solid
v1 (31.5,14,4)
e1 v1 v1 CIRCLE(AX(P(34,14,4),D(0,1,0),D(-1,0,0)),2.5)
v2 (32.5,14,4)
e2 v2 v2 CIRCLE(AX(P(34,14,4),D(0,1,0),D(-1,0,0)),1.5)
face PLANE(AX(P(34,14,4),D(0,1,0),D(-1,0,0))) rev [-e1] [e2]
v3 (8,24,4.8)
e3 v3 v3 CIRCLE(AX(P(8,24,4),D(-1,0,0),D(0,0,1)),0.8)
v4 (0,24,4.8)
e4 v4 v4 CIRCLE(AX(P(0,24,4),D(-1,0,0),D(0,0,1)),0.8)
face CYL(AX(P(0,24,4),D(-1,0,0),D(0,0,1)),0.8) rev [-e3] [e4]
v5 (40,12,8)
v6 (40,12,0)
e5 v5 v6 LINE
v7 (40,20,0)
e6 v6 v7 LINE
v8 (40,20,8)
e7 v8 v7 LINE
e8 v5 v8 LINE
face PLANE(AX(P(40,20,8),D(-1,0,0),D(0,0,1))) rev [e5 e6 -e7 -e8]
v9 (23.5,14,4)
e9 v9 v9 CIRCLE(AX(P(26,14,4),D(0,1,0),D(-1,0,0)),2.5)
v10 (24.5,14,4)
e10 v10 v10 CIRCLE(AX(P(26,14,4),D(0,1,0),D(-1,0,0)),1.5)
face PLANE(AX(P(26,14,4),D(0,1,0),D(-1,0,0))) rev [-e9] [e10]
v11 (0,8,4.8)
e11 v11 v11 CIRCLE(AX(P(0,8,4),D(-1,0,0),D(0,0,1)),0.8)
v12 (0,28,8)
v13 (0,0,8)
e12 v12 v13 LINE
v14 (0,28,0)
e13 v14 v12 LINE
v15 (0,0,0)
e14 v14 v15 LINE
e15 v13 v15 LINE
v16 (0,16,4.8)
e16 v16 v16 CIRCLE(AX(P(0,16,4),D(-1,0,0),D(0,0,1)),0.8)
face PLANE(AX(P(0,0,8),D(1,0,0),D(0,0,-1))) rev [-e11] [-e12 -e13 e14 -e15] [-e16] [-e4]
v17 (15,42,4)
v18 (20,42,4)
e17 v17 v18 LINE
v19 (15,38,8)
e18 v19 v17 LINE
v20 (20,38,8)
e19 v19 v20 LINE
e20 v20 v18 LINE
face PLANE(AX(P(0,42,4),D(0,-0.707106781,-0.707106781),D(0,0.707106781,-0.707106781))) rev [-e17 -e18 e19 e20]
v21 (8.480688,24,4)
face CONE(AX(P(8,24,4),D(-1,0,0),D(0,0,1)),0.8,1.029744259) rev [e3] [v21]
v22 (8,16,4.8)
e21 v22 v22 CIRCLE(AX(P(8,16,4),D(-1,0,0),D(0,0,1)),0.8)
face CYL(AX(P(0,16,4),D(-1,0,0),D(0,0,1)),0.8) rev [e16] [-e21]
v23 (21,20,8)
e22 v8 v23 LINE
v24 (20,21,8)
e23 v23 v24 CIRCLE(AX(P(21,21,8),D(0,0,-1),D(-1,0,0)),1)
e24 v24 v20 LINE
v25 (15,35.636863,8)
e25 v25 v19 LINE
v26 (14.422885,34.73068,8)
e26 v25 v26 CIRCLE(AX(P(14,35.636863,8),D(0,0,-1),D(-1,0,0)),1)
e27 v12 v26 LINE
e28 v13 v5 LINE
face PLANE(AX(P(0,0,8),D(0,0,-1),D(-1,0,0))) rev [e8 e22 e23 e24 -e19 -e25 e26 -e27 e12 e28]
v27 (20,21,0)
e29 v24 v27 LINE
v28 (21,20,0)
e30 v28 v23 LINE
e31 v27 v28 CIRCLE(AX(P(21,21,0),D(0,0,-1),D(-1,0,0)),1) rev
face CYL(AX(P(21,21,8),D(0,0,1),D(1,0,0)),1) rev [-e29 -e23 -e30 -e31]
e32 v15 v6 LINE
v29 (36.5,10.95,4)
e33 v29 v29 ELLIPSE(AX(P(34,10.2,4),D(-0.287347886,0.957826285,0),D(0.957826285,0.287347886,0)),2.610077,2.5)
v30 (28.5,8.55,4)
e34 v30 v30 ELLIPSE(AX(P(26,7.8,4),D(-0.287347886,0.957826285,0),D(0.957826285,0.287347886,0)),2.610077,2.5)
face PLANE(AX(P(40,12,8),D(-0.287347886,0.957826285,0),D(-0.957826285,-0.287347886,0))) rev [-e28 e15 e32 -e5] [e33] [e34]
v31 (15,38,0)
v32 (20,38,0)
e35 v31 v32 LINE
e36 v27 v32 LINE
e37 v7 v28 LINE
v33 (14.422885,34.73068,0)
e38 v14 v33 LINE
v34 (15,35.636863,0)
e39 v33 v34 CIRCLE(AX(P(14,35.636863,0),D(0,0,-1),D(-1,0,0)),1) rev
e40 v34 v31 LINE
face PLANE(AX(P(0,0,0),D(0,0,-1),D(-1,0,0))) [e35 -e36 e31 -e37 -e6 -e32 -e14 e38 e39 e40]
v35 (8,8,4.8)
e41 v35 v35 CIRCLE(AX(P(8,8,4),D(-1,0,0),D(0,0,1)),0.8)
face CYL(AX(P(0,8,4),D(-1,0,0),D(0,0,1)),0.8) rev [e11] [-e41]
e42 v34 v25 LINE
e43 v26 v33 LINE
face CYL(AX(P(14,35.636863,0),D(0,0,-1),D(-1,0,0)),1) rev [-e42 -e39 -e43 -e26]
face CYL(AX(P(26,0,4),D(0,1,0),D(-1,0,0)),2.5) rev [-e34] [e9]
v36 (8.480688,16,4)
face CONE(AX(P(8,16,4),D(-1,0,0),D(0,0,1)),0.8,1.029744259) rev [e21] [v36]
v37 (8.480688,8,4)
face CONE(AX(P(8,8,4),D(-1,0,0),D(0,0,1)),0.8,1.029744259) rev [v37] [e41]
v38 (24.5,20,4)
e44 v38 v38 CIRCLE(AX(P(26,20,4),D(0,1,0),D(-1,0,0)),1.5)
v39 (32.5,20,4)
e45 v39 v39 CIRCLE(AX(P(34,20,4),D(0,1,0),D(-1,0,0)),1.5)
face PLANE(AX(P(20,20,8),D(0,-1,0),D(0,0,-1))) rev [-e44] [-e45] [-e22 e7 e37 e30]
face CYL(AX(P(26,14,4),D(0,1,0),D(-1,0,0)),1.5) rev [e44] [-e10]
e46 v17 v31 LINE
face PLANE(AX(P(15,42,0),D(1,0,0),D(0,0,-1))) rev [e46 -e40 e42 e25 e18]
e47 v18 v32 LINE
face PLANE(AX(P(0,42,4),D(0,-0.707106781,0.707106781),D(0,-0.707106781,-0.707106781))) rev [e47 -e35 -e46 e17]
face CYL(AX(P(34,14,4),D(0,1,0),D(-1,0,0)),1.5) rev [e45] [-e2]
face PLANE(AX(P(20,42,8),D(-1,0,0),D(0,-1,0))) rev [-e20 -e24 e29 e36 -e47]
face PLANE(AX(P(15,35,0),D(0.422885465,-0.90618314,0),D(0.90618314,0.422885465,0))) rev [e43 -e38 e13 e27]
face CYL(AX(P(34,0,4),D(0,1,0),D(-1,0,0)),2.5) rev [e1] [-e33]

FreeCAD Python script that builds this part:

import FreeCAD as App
import Part
import Sketcher

V = App.Vector


def edges_at(feature, points):
    """Names of the edges that pass closest to the given points."""
    edges = feature.Shape.Edges
    near = lambda p: min(range(len(edges)), key=lambda i: edges[i].distToShape(Part.Vertex(*p))[0])
    return sorted({f"Edge{near(p) + 1}" for p in points})


def add_polygon(sketch, points):
    """Adds a closed chain of lines whose ends are joined by coincident constraints."""
    first, n = sketch.GeometryCount, len(points)
    for a, b in zip(points, points[1:] + points[:1]):
        sketch.addGeometry(Part.LineSegment(App.Vector(*a, 0), App.Vector(*b, 0)), False)
    for i in range(n):
        sketch.addConstraint(Sketcher.Constraint("Coincident", first + i, 2, first + (i + 1) % n, 1))

doc = App.newDocument("Part")
body = doc.addObject("PartDesign::Body", "Body")

# Sketch on XY plane
sketch1 = body.newObject("Sketcher::SketchObject", "Sketch")
sketch1.AttachmentSupport = (doc.getObject("XY_Plane"), [""])
sketch1.MapMode = "FlatFace"
add_polygon(sketch1, [(0, 42), (0, 0), (40, 12), (40, 20), (20, 20), (20, 42)])  # lines 0-5
sketch1.addConstraint([
    Sketcher.Constraint("Vertical", 0),
    Sketcher.Constraint("Vertical", 2),
    Sketcher.Constraint("Horizontal", 3),
    Sketcher.Constraint("Vertical", 4),
    Sketcher.Constraint("Horizontal", 5),
    Sketcher.Constraint("Coincident", 0, 2, -1, 1),
    Sketcher.Constraint("Equal", 3, 5),
    Sketcher.Constraint("DistanceX", 3, 2, 3, 1, 20.0),
    Sketcher.Constraint("DistanceY", 0, 2, 0, 1, 42.0),
    Sketcher.Constraint("DistanceY", 2, 1, 2, 2, 8.0),
    Sketcher.Constraint("DistanceY", 4, 1, 4, 2, 22.0),
])
pad1 = body.newObject("PartDesign::Pad", "Pad")
pad1.Profile = sketch1
pad1.Length = 8

# Sketch on XY plane
sketch2 = body.newObject("Sketcher::SketchObject", "Sketch001")
sketch2.AttachmentSupport = (doc.getObject("XY_Plane"), [""])
sketch2.MapMode = "FlatFace"
sketch2.AttachmentOffset = App.Placement(V(0, 0, 8), App.Rotation())
add_polygon(sketch2, [(15, 35), (15, 42), (0, 42), (0, 28)])  # lines 0-3
sketch2.addConstraint([
    Sketcher.Constraint("Vertical", 0),
    Sketcher.Constraint("Horizontal", 1),
    Sketcher.Constraint("Vertical", 2),
    Sketcher.Constraint("PointOnObject", 1, 2, -2),
    Sketcher.Constraint("DistanceX", 1, 2, 1, 1, 15.0),
    Sketcher.Constraint("DistanceY", 0, 1, 0, 2, 7.0),
    Sketcher.Constraint("DistanceY", 2, 2, 2, 1, 14.0),
    Sketcher.Constraint("DistanceY", -1, 1, 0, 2, 42.0),
])
pocket1 = body.newObject("PartDesign::Pocket", "Pocket")
pocket1.Profile = sketch2
pocket1.Length = 8

# Sketch on XZ plane
sketch3 = body.newObject("Sketcher::SketchObject", "Sketch002")
sketch3.AttachmentSupport = (doc.getObject("XZ_Plane"), [""])
sketch3.MapMode = "FlatFace"
sketch3.AttachmentOffset = App.Placement(V(0, 0, -20), App.Rotation())
sketch3.addGeometry([
    Part.Circle(V(34, 4, 0), V(0, 0, 1), 1.5),
    Part.Circle(V(26, 4, 0), V(0, 0, 1), 1.5),
], False)
sketch3.addConstraint([
    Sketcher.Constraint("Equal", 0, 1),
    Sketcher.Constraint("Horizontal", 0, 3, 1, 3),
    Sketcher.Constraint("Diameter", 0, 3.0),
    Sketcher.Constraint("DistanceX", -1, 1, 0, 3, 34.0),
    Sketcher.Constraint("DistanceY", -1, 1, 0, 3, 4.0),
    Sketcher.Constraint("DistanceX", -1, 1, 1, 3, 26.0),
])
pocket2 = body.newObject("PartDesign::Pocket", "Pocket001")
pocket2.Profile = sketch3
pocket2.Length = 6
pocket2.Reversed = True

# Sketch on XZ plane
sketch4 = body.newObject("Sketcher::SketchObject", "Sketch003")
sketch4.AttachmentSupport = (doc.getObject("XZ_Plane"), [""])
sketch4.MapMode = "FlatFace"
sketch4.AttachmentOffset = App.Placement(V(0, 0, -14), App.Rotation())
sketch4.addGeometry([
    Part.Circle(V(34, 4, 0), V(0, 0, 1), 2.5),
    Part.Circle(V(26, 4, 0), V(0, 0, 1), 2.5),
], False)
sketch4.addConstraint([
    Sketcher.Constraint("Equal", 0, 1),
    Sketcher.Constraint("Horizontal", 0, 3, 1, 3),
    Sketcher.Constraint("Diameter", 0, 5.0),
    Sketcher.Constraint("DistanceX", -1, 1, 0, 3, 34.0),
    Sketcher.Constraint("DistanceY", -1, 1, 0, 3, 4.0),
    Sketcher.Constraint("DistanceX", -1, 1, 1, 3, 26.0),
])
pocket3 = body.newObject("PartDesign::Pocket", "Pocket002")
pocket3.Profile = sketch4
pocket3.Type = "ThroughAll"
pocket3.Reversed = True

# Sketch on YZ plane
sketch5 = body.newObject("Sketcher::SketchObject", "Sketch004")
sketch5.AttachmentSupport = (doc.getObject("YZ_Plane"), [""])
sketch5.MapMode = "FlatFace"
sketch5.AttachmentOffset = App.Placement(V(0, 0, 20), App.Rotation())
add_polygon(sketch5, [(42, 4), (42, 8), (38, 8)])  # lines 0-2
sketch5.addConstraint([
    Sketcher.Constraint("Vertical", 0),
    Sketcher.Constraint("Horizontal", 1),
    Sketcher.Constraint("Equal", 1, 0),
    Sketcher.Constraint("DistanceX", 1, 2, 1, 1, 4.0),
    Sketcher.Constraint("DistanceX", -1, 1, 0, 2, 42.0),
    Sketcher.Constraint("DistanceY", -1, 1, 0, 2, 8.0),
])
pocket4 = body.newObject("PartDesign::Pocket", "Pocket003")
pocket4.Profile = sketch5
pocket4.Type = "ThroughAll"

# Sketch on YZ plane
sketch6 = body.newObject("Sketcher::SketchObject", "Sketch005")
sketch6.AttachmentSupport = (doc.getObject("YZ_Plane"), [""])
sketch6.MapMode = "FlatFace"
sketch6.AttachmentOffset = App.Placement(V(0, 0, 20), App.Rotation())
add_polygon(sketch6, [(42, 0), (42, 4), (38, 0)])  # lines 0-2
sketch6.addConstraint([
    Sketcher.Constraint("Vertical", 0),
    Sketcher.Constraint("Horizontal", 2),
    Sketcher.Constraint("PointOnObject", 1, 2, -1),
    Sketcher.Constraint("Equal", 2, 0),
    Sketcher.Constraint("DistanceX", 2, 1, 2, 2, 4.0),
    Sketcher.Constraint("DistanceX", -1, 1, 0, 2, 42.0),
])
pocket5 = body.newObject("PartDesign::Pocket", "Pocket004")
pocket5.Profile = sketch6
pocket5.Type = "ThroughAll"

# Sketch on YZ plane
sketch7 = body.newObject("Sketcher::SketchObject", "Sketch006")
sketch7.AttachmentSupport = (doc.getObject("YZ_Plane"), [""])
sketch7.MapMode = "FlatFace"
sketch7.addGeometry([
    Part.Circle(V(24, 4, 0), V(0, 0, 1), 0.8),
    Part.Circle(V(16, 4, 0), V(0, 0, 1), 0.8),
    Part.Circle(V(8, 4, 0), V(0, 0, 1), 0.8),
], False)
sketch7.addConstraint([
    Sketcher.Constraint("Equal", 0, 1),
    Sketcher.Constraint("Equal", 1, 2),
    Sketcher.Constraint("Horizontal", 0, 3, 1, 3),
    Sketcher.Constraint("Horizontal", 1, 3, 2, 3),
    Sketcher.Constraint("Diameter", 0, 1.6),
    Sketcher.Constraint("DistanceX", -1, 1, 0, 3, 24.0),
    Sketcher.Constraint("DistanceY", -1, 1, 0, 3, 4.0),
    Sketcher.Constraint("DistanceX", -1, 1, 1, 3, 16.0),
    Sketcher.Constraint("DistanceX", -1, 1, 2, 3, 8.0),
])
doc.recompute()
hole = body.newObject("PartDesign::Hole", "Hole")
hole.Profile = sketch7
hole.ThreadType = "None"
hole.Diameter = 1.6
hole.DepthType = "Dimension"
hole.Depth = 8
hole.DrillPoint = "Angled"
hole.DrillPointAngle = 118
hole.Reversed = True
doc.recompute()

fillet = body.newObject("PartDesign::Fillet", "Fillet")
fillet.Base = (hole, edges_at(hole, [(20, 20, 4)]))
fillet.Radius = 1
doc.recompute()

fillet2 = body.newObject("PartDesign::Fillet", "Fillet001")
fillet2.Base = (fillet, edges_at(fillet, [(15, 35, 4)]))
fillet2.Radius = 1

doc.recompute()
